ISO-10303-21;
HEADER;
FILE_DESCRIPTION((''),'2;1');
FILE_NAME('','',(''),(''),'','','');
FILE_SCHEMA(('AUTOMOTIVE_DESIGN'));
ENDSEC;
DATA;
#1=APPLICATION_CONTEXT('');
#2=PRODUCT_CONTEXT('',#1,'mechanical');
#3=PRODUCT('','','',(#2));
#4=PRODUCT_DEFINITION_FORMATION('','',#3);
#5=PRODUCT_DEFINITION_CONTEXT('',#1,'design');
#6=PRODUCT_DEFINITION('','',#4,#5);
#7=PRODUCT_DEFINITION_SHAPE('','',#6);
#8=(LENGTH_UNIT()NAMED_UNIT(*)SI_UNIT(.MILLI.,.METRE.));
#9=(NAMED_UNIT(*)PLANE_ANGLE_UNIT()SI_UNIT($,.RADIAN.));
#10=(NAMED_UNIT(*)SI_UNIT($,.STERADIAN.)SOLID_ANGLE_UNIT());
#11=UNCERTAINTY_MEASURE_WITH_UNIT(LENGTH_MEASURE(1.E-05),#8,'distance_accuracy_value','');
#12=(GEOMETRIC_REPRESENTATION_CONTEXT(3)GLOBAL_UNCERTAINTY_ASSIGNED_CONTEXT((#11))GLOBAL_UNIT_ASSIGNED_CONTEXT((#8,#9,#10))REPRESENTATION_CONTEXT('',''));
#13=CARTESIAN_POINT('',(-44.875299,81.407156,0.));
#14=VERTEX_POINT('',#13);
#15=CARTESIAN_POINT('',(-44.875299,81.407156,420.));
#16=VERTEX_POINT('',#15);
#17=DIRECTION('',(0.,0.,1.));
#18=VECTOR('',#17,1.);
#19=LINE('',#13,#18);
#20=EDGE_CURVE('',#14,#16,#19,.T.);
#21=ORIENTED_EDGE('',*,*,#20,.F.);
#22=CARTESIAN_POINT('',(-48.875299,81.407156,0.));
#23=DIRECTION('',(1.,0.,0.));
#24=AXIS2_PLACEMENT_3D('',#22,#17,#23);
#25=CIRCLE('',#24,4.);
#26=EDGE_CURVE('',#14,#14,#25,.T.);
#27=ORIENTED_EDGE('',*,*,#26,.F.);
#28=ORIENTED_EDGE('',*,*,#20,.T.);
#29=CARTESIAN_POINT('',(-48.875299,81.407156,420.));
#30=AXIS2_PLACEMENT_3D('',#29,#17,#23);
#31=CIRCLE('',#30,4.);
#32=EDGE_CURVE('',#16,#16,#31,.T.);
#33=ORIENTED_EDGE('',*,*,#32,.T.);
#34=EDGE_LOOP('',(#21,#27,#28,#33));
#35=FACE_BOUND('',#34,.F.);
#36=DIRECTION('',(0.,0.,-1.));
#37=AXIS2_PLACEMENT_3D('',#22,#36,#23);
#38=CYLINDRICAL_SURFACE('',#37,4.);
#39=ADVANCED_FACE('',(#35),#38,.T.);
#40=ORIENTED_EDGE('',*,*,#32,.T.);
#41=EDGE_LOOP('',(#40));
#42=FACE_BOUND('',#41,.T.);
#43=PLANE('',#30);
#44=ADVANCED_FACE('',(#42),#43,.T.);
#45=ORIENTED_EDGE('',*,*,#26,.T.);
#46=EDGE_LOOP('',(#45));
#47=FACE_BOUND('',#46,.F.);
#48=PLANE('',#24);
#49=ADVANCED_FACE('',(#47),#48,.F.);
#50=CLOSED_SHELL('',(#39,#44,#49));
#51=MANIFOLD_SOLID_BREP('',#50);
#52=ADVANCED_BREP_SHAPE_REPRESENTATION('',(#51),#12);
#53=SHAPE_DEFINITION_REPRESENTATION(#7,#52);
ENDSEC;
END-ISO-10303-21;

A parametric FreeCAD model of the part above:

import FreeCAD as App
import Part
import Sketcher

doc = App.newDocument("Part")
body = doc.addObject("PartDesign::Body", "Body")

sketch1 = doc.addObject("Sketcher::SketchObject", "Sketch")
body.addObject(sketch1)
sketch1.AttachmentSupport = (doc.XY_Plane, [""])
sketch1.MapMode = "FlatFace"
sketch1.addGeometry(Part.Circle(App.Vector(-48.9, 81.4, 0), App.Vector(0, 0, 1), 4), False)
sketch1.addConstraint(Sketcher.Constraint("Diameter", 0, 8.0))
sketch1.addConstraint(Sketcher.Constraint("DistanceX", 0, 3, -1, 1, 48.875299))
sketch1.addConstraint(Sketcher.Constraint("DistanceY", -1, 1, 0, 3, 81.407156))
pad1 = doc.addObject("PartDesign::Pad", "Pad")
body.addObject(pad1)
pad1.Profile = sketch1
pad1.Length = 420

doc.recompute()
